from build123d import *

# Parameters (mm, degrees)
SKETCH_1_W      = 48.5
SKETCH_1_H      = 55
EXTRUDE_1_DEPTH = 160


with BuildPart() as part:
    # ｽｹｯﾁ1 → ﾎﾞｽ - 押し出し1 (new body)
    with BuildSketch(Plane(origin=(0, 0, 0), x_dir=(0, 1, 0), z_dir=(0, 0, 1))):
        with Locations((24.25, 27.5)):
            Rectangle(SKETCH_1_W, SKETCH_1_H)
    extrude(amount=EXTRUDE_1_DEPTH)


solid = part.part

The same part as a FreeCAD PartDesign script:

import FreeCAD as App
import Part
import Sketcher
Q = App.Units.Quantity


def add_polygon(sketch, points):
    """Adds a closed chain of lines whose ends are joined by coincident constraints."""
    first, n = sketch.GeometryCount, len(points)
    for a, b in zip(points, points[1:] + points[:1]):
        sketch.addGeometry(Part.LineSegment(App.Vector(*a, 0), App.Vector(*b, 0)), False)
    for i in range(n):
        sketch.addConstraint(Sketcher.Constraint("Coincident", first + i, 2, first + (i + 1) % n, 1))

doc = App.newDocument("Part")
body = doc.addObject("PartDesign::Body", "Body")

# Sketch on XY plane
sketch1 = body.newObject("Sketcher::SketchObject", "Sketch")
sketch1.AttachmentSupport = (doc.getObject("XY_Plane"), [""])
sketch1.MapMode = "FlatFace"
add_polygon(sketch1, [(-55, 0), (0, 0), (0, 48.5), (-55, 48.5)])  # lines 0-3
sketch1.addConstraint(Sketcher.Constraint("Horizontal", 0))
sketch1.addConstraint(Sketcher.Constraint("Vertical", 1))
sketch1.addConstraint(Sketcher.Constraint("Horizontal", 2))
sketch1.addConstraint(Sketcher.Constraint("Vertical", 3))
sketch1.addConstraint(Sketcher.Constraint("Coincident", 0, 2, -1, 1))
sketch1.addConstraint(Sketcher.Constraint("DistanceX", 0, 1, 0, 2, Q("55 mm")))
sketch1.addConstraint(Sketcher.Constraint("DistanceY", 1, 1, 1, 2, Q("48.5 mm")))
pad1 = body.newObject("PartDesign::Pad", "Pad")
pad1.Profile = sketch1
pad1.Length = 160

doc.recompute()
